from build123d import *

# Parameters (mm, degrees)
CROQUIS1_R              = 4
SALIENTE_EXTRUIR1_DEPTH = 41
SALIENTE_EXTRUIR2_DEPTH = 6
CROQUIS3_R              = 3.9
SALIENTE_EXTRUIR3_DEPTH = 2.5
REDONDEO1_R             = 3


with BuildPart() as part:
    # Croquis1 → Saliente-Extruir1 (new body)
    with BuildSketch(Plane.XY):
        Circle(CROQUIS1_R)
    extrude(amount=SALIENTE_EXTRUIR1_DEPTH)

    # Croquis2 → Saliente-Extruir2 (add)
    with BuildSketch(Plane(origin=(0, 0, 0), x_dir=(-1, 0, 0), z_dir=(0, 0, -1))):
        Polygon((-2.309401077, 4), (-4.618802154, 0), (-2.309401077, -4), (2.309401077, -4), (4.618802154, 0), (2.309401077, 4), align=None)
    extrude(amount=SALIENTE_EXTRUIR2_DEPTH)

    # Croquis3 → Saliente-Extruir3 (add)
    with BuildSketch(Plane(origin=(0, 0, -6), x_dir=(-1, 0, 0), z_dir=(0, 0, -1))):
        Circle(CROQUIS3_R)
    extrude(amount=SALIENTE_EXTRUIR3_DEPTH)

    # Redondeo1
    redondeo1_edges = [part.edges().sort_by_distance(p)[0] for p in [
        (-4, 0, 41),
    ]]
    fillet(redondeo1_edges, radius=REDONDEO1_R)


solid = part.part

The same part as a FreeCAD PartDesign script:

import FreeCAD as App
import Part
import Sketcher

V = App.Vector
Q = App.Units.Quantity


def edges_at(feature, points):
    """Names of the edges that pass closest to the given points."""
    edges = feature.Shape.Edges
    near = lambda p: min(range(len(edges)), key=lambda i: edges[i].distToShape(Part.Vertex(*p))[0])
    return sorted({f"Edge{near(p) + 1}" for p in points})


def add_polygon(sketch, points):
    """Adds a closed chain of lines whose ends are joined by coincident constraints."""
    first, n = sketch.GeometryCount, len(points)
    for a, b in zip(points, points[1:] + points[:1]):
        sketch.addGeometry(Part.LineSegment(App.Vector(*a, 0), App.Vector(*b, 0)), False)
    for i in range(n):
        sketch.addConstraint(Sketcher.Constraint("Coincident", first + i, 2, first + (i + 1) % n, 1))

doc = App.newDocument("Part")
body = doc.addObject("PartDesign::Body", "Body")

sketch1 = doc.addObject("Sketcher::SketchObject", "Sketch")
body.addObject(sketch1)
sketch1.AttachmentSupport = (doc.XY_Plane, [""])
sketch1.MapMode = "FlatFace"
sketch1.addGeometry(Part.Circle(V(0, 0, 0), V(0, 0, 1), 4), False)
sketch1.addConstraint(Sketcher.Constraint("Coincident", 0, 3, -1, 1))
sketch1.addConstraint(Sketcher.Constraint("Diameter", 0, 8.0))
pad1 = doc.addObject("PartDesign::Pad", "Pad")
body.addObject(pad1)
pad1.Profile = sketch1
pad1.Length = 41

sketch2 = doc.addObject("Sketcher::SketchObject", "Sketch001")
body.addObject(sketch2)
sketch2.AttachmentSupport = (doc.XY_Plane, [""])
sketch2.MapMode = "FlatFace"
add_polygon(sketch2, [(2.3, 4), (4.6, 0), (2.3, -4), (-2.3, -4), (-4.6, 0), (-2.3, 4)])
sketch2.addConstraint(Sketcher.Constraint("Horizontal", 2))
sketch2.addConstraint(Sketcher.Constraint("Horizontal", 5))
sketch2.addConstraint(Sketcher.Constraint("Symmetric", 0, 2, 3, 2, -1, 1))
sketch2.addConstraint(Sketcher.Constraint("Symmetric", 1, 2, 4, 2, -1, 1))
sketch2.addConstraint(Sketcher.Constraint("PointOnObject", 0, 2, -1))
sketch2.addConstraint(Sketcher.Constraint("Parallel", 0, 3))
sketch2.addConstraint(Sketcher.Constraint("Vertical", 2, 2, 4, 2))
sketch2.addConstraint(Sketcher.Constraint("Angle", 0, Q("-60 deg")))
sketch2.addConstraint(Sketcher.Constraint("DistanceY", 1, 2, -1, 1, 4.0))
sketch2.addConstraint(Sketcher.Constraint("DistanceX", -1, 1, 1, 2, 2.309401))
pad2 = doc.addObject("PartDesign::Pad", "Pad001")
body.addObject(pad2)
pad2.Profile = sketch2
pad2.Length = 6
pad2.Reversed = True

sketch3 = doc.addObject("Sketcher::SketchObject", "Sketch002")
body.addObject(sketch3)
sketch3.AttachmentSupport = (doc.XY_Plane, [""])
sketch3.MapMode = "FlatFace"
sketch3.AttachmentOffset = App.Placement(V(0, 0, -6), App.Rotation())
sketch3.addGeometry(Part.Circle(V(0, 0, 0), V(0, 0, 1), 3.9), False)
sketch3.addConstraint(Sketcher.Constraint("Coincident", 0, 3, -1, 1))
sketch3.addConstraint(Sketcher.Constraint("Diameter", 0, 7.8))
pad3 = doc.addObject("PartDesign::Pad", "Pad002")
body.addObject(pad3)
pad3.Profile = sketch3
pad3.Length = 2.5
pad3.Reversed = True
doc.recompute()

fillet = doc.addObject("PartDesign::Fillet", "Fillet")
body.addObject(fillet)
fillet.Base = (pad3, edges_at(pad3, [(-4, 0, 41)]))
fillet.Radius = 3

doc.recompute()
